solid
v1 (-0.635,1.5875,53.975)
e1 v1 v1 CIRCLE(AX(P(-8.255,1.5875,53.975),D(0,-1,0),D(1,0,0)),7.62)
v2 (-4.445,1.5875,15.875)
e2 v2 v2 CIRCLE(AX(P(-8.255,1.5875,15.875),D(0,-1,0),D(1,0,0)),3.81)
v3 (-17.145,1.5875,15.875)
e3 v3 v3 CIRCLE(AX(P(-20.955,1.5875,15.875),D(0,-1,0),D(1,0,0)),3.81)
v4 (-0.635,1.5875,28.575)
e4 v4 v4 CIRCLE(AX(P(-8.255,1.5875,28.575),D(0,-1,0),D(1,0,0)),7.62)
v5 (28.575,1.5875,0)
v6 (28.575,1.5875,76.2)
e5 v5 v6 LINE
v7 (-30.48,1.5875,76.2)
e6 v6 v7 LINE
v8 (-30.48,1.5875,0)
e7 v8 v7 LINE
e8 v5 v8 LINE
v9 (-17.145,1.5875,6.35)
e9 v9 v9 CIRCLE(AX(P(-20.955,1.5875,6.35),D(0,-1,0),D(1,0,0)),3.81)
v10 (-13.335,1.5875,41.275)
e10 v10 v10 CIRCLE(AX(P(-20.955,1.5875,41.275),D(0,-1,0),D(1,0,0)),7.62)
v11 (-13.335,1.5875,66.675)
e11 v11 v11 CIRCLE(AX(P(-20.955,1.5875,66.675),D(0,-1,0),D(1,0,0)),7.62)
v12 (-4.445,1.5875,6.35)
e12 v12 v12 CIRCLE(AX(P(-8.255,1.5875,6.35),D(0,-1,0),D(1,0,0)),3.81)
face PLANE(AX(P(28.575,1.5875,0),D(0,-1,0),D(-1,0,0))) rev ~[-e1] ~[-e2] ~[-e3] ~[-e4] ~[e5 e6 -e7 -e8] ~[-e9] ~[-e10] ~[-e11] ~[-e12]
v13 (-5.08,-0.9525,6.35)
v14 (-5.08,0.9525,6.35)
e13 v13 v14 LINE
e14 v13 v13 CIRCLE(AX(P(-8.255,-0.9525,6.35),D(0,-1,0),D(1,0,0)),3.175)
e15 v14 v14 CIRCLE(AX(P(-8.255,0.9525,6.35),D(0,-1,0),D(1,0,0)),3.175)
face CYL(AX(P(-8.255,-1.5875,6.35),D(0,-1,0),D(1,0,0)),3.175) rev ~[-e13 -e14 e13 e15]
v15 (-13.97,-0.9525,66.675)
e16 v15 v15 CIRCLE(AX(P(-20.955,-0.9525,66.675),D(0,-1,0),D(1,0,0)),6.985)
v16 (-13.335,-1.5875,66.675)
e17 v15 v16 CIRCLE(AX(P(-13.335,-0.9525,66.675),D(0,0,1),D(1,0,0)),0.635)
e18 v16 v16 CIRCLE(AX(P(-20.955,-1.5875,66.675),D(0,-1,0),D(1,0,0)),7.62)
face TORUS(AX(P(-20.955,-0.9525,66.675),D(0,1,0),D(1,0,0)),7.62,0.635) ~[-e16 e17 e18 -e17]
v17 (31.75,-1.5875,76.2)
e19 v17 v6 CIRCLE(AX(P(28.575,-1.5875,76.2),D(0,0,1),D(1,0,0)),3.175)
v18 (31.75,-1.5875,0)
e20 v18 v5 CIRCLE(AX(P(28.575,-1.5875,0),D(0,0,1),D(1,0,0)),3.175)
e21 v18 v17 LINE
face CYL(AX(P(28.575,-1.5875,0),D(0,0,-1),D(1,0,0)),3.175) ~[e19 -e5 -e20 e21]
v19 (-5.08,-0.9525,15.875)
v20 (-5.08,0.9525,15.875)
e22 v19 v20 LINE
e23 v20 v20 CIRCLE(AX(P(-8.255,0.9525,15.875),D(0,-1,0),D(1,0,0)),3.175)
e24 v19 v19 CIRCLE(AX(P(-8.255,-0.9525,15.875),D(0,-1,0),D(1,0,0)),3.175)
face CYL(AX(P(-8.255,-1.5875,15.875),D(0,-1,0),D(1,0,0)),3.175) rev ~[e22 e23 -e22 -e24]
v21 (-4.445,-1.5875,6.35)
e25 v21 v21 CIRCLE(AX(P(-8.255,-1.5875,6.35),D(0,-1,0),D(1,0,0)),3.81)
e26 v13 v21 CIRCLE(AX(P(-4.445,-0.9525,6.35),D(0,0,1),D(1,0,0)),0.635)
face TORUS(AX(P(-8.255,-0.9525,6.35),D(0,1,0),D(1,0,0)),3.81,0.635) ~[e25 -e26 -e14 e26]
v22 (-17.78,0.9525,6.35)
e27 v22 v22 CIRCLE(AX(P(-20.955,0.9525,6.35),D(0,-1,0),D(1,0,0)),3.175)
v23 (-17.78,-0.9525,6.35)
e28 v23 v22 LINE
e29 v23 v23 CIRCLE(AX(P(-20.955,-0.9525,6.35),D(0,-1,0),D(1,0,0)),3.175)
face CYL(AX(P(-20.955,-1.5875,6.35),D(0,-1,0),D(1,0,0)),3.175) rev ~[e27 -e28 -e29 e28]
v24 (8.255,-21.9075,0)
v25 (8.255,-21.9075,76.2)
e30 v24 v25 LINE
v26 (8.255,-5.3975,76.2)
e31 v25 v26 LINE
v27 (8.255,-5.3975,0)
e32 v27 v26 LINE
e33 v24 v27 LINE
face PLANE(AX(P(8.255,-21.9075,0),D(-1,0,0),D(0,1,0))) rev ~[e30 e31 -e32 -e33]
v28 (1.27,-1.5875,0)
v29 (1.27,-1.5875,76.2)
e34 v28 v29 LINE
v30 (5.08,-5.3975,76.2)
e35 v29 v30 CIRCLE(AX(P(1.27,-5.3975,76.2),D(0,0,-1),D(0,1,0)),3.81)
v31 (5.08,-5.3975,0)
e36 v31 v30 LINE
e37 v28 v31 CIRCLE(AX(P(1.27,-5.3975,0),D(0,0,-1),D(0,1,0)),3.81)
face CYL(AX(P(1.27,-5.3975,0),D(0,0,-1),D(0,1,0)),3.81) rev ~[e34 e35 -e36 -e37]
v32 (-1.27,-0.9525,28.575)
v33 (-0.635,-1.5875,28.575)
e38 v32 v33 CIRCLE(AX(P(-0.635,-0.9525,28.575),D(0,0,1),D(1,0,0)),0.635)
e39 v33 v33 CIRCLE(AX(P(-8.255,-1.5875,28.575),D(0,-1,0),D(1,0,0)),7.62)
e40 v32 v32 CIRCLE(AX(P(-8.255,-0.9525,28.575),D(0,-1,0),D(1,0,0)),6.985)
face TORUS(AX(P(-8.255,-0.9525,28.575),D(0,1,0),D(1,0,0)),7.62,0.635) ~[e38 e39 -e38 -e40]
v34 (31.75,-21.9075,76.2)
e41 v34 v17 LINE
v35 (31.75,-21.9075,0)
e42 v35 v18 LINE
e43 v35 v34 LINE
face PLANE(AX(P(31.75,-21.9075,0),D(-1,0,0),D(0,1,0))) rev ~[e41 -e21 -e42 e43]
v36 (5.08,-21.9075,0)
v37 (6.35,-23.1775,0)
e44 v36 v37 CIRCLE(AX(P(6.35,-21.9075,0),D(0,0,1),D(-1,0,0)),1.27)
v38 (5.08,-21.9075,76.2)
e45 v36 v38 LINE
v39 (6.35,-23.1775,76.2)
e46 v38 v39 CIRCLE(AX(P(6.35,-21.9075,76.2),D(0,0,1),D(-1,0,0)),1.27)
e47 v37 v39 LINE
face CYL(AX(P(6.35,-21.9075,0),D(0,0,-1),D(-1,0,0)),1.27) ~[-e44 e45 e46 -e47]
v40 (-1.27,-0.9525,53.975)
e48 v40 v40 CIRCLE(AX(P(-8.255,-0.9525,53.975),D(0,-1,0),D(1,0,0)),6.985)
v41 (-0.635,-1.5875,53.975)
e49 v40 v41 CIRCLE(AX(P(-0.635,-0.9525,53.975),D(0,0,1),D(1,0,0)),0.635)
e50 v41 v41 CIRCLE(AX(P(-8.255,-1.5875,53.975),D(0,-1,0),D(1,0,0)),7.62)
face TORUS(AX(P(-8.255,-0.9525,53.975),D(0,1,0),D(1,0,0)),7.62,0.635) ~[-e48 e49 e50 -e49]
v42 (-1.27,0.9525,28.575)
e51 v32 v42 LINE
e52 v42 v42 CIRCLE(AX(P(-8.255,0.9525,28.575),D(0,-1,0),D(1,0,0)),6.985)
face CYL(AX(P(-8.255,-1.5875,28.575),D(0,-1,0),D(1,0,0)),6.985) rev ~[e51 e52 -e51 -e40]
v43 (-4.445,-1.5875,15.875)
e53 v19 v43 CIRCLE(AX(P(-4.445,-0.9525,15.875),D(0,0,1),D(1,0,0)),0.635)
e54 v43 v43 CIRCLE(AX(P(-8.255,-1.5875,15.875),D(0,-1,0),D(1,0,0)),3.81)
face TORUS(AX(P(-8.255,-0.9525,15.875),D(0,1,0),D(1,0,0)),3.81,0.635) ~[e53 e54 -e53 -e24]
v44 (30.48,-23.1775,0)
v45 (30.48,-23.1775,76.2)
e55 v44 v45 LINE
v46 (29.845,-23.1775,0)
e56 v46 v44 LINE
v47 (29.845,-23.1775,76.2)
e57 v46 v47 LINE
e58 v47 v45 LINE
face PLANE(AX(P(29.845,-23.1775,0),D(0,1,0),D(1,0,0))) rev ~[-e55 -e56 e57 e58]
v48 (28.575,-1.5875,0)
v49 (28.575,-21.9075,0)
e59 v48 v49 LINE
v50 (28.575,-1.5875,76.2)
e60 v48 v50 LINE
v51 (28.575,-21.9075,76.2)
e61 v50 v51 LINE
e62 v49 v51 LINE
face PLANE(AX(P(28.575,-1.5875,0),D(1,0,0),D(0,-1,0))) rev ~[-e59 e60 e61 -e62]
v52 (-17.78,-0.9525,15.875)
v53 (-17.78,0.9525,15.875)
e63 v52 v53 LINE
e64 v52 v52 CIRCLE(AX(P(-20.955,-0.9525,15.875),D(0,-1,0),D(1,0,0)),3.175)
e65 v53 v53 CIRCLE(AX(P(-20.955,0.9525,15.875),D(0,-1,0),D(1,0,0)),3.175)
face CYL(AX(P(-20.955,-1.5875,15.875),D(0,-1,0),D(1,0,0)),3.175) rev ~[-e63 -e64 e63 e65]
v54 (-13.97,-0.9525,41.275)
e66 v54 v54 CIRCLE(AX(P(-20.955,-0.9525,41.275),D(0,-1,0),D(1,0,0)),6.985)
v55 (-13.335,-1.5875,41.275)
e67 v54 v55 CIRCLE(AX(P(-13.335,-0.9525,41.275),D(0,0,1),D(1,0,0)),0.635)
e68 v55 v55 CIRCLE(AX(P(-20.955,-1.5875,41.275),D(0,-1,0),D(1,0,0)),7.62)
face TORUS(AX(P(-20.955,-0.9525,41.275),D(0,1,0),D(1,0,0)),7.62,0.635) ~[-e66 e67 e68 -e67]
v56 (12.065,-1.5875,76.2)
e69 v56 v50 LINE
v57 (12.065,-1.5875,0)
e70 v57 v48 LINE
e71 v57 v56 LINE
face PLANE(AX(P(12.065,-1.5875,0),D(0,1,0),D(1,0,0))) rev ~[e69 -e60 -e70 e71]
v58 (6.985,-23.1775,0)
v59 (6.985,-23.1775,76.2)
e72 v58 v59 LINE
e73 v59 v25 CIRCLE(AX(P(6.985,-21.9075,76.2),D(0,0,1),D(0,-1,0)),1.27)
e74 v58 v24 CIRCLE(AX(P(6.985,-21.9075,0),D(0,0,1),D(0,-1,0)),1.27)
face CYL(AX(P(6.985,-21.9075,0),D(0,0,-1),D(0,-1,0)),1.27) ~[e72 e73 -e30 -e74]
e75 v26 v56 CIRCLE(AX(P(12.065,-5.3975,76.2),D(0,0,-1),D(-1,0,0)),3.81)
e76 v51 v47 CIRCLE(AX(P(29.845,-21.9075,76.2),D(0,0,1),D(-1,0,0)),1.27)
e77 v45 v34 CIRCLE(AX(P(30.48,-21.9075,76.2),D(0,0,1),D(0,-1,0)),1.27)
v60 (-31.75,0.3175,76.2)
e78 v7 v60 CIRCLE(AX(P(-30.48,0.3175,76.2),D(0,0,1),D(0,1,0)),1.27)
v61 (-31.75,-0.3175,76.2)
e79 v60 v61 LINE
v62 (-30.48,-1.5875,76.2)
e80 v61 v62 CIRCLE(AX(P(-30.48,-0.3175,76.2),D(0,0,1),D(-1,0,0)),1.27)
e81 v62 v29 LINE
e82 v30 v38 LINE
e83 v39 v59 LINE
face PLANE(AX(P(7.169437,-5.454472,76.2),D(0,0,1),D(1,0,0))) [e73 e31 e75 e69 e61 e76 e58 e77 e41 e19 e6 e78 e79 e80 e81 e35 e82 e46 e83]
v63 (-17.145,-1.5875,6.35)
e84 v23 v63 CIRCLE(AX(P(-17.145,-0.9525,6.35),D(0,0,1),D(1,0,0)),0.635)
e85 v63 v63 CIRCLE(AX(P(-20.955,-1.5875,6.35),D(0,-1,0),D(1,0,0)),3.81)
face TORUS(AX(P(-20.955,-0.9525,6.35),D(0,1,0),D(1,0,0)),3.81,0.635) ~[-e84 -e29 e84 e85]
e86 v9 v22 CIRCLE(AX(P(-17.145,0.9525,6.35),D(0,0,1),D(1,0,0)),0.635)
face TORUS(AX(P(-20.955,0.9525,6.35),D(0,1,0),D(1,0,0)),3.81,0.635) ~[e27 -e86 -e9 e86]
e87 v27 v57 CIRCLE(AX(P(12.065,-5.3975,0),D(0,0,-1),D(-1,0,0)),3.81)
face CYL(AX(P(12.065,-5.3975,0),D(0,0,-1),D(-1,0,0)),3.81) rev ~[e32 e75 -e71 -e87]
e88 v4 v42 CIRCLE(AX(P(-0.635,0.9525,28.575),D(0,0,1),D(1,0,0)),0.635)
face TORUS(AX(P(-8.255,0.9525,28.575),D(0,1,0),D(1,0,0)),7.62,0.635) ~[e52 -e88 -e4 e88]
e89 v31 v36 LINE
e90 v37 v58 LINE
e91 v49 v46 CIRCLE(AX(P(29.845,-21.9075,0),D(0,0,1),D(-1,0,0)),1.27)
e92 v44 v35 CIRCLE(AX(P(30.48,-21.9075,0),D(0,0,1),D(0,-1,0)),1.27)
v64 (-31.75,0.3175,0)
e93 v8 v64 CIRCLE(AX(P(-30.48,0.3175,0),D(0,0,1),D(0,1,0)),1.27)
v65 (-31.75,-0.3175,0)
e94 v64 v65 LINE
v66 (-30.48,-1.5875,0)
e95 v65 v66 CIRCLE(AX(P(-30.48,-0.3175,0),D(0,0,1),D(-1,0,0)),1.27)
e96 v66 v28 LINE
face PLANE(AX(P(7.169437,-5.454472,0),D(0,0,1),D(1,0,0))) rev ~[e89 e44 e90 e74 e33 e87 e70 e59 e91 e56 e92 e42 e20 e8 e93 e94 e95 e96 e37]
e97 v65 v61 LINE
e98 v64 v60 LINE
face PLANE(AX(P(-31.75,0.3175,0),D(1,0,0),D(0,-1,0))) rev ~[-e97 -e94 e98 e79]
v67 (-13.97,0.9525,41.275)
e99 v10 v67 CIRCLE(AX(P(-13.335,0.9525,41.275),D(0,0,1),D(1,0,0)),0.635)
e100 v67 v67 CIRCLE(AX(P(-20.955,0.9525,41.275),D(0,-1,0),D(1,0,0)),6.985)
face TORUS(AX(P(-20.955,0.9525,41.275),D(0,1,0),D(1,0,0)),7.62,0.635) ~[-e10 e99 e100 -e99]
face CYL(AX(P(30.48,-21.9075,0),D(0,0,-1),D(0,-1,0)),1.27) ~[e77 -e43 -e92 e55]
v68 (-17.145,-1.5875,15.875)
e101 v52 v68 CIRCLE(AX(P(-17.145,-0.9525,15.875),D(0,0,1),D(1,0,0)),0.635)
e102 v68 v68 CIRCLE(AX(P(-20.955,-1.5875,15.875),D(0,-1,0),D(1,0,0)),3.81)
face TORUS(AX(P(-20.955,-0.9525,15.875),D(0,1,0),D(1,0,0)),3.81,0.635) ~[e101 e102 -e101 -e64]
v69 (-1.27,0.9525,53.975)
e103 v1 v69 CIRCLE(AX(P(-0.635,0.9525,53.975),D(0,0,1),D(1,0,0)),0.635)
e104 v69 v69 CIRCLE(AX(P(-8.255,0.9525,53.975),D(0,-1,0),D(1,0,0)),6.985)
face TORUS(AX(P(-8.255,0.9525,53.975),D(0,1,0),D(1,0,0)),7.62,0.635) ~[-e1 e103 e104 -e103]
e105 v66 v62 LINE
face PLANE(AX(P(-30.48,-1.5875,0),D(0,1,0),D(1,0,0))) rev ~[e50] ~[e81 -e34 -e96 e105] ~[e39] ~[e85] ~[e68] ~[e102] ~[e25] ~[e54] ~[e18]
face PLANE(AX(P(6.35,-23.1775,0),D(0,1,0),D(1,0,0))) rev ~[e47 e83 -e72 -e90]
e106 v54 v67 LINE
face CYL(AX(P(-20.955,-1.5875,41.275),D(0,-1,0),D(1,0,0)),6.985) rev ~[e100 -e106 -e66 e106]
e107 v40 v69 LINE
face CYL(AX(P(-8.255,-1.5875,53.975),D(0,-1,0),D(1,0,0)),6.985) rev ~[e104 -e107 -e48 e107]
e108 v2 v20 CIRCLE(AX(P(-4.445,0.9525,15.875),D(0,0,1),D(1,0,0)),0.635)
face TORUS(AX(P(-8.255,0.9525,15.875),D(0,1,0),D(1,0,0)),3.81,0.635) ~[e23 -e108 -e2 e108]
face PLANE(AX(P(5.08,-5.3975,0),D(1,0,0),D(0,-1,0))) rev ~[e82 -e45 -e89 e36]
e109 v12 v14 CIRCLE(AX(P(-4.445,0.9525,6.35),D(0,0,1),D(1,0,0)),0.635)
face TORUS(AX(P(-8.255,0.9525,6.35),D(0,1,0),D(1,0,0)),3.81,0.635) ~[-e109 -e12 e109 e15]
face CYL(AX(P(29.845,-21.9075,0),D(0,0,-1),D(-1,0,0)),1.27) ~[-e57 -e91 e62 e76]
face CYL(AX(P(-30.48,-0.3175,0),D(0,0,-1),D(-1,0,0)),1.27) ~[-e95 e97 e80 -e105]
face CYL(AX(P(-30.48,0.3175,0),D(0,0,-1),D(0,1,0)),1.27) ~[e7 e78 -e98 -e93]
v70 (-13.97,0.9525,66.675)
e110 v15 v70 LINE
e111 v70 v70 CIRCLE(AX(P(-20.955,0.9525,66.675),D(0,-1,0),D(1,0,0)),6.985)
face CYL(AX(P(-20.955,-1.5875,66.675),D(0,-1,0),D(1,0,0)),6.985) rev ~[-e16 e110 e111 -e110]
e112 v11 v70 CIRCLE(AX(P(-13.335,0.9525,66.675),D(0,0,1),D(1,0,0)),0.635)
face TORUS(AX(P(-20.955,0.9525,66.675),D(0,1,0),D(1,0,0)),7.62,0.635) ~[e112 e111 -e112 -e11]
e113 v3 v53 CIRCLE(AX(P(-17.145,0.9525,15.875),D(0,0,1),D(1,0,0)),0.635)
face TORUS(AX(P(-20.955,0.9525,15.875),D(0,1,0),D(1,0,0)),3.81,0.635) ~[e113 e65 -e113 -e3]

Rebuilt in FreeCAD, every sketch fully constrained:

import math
import FreeCAD as App
import Part
import Sketcher
from FreeCAD import Vector
Q = App.Units.Quantity


def edges_at(feature, points):
    """Names of the edges that pass closest to the given points."""
    edges = feature.Shape.Edges
    near = lambda p: min(range(len(edges)), key=lambda i: edges[i].distToShape(Part.Vertex(*p))[0])
    return sorted({f"Edge{near(p) + 1}" for p in points})

doc = App.newDocument("Part")
body = doc.addObject("PartDesign::Body", "Body")

# Sketch on XY plane
sketch1 = body.newObject("Sketcher::SketchObject", "Sketch")
sketch1.AttachmentSupport = (doc.getObject("XY_Plane"), [""])
sketch1.MapMode = "FlatFace"
sketch1.addGeometry(Part.ArcOfCircle(Part.Circle(Vector(28.6, -1.6, 0), Vector(0, 0, 1), 3.2), math.radians(0), math.radians(90)), False)
sketch1.addGeometry(Part.LineSegment(Vector(28.6, 1.6, 0), Vector(-30.5, 1.6, 0)), False)
sketch1.addGeometry(Part.ArcOfCircle(Part.Circle(Vector(-30.5, 0.3, 0), Vector(0, 0, 1), 1.3), math.radians(90), math.radians(180)), False)
sketch1.addGeometry(Part.LineSegment(Vector(-31.8, 0.3, 0), Vector(-31.8, -0.3, 0)), False)
sketch1.addGeometry(Part.ArcOfCircle(Part.Circle(Vector(-30.5, -0.3, 0), Vector(0, 0, 1), 1.3), math.radians(180), math.radians(270)), False)
sketch1.addGeometry(Part.LineSegment(Vector(-30.5, -1.6, 0), Vector(1.3, -1.6, 0)), False)
sketch1.addGeometry(Part.ArcOfCircle(Part.Circle(Vector(1.3, -5.4, 0), Vector(0, 0, 1), 3.8), math.radians(0), math.radians(90)), False)
sketch1.addGeometry(Part.LineSegment(Vector(5.1, -5.4, 0), Vector(5.1, -21.9, 0)), False)
sketch1.addGeometry(Part.ArcOfCircle(Part.Circle(Vector(6.3, -21.9, 0), Vector(0, 0, 1), 1.3), math.radians(180), math.radians(270)), False)
sketch1.addGeometry(Part.LineSegment(Vector(6.3, -23.2, 0), Vector(7, -23.2, 0)), False)
sketch1.addGeometry(Part.ArcOfCircle(Part.Circle(Vector(7, -21.9, 0), Vector(0, 0, 1), 1.3), math.radians(-90), math.radians(0)), False)
sketch1.addGeometry(Part.LineSegment(Vector(8.3, -21.9, 0), Vector(8.3, -5.4, 0)), False)
sketch1.addGeometry(Part.ArcOfCircle(Part.Circle(Vector(12.1, -5.4, 0), Vector(0, 0, 1), 3.8), math.radians(90), math.radians(180)), False)
sketch1.addGeometry(Part.LineSegment(Vector(12.1, -1.6, 0), Vector(28.6, -1.6, 0)), False)
sketch1.addGeometry(Part.LineSegment(Vector(28.6, -1.6, 0), Vector(28.6, -21.9, 0)), False)
sketch1.addGeometry(Part.ArcOfCircle(Part.Circle(Vector(29.8, -21.9, 0), Vector(0, 0, 1), 1.3), math.radians(180), math.radians(270)), False)
sketch1.addGeometry(Part.LineSegment(Vector(29.8, -23.2, 0), Vector(30.5, -23.2, 0)), False)
sketch1.addGeometry(Part.ArcOfCircle(Part.Circle(Vector(30.5, -21.9, 0), Vector(0, 0, 1), 1.3), math.radians(-90), math.radians(0)), False)
sketch1.addGeometry(Part.LineSegment(Vector(31.8, -21.9, 0), Vector(31.8, -1.6, 0)), False)
sketch1.addConstraint(Sketcher.Constraint("Tangent", 0, 2, 1, 1))
sketch1.addConstraint(Sketcher.Constraint("Tangent", 1, 2, 2, 1))
sketch1.addConstraint(Sketcher.Constraint("Tangent", 2, 2, 3, 1))
sketch1.addConstraint(Sketcher.Constraint("Tangent", 3, 2, 4, 1))
sketch1.addConstraint(Sketcher.Constraint("Tangent", 4, 2, 5, 1))
sketch1.addConstraint(Sketcher.Constraint("Tangent", 5, 2, 6, 2))
sketch1.addConstraint(Sketcher.Constraint("Tangent", 6, 1, 7, 1))
sketch1.addConstraint(Sketcher.Constraint("Tangent", 7, 2, 8, 1))
sketch1.addConstraint(Sketcher.Constraint("Tangent", 8, 2, 9, 1))
sketch1.addConstraint(Sketcher.Constraint("Tangent", 9, 2, 10, 1))
sketch1.addConstraint(Sketcher.Constraint("Tangent", 10, 2, 11, 1))
sketch1.addConstraint(Sketcher.Constraint("Tangent", 11, 2, 12, 2))
sketch1.addConstraint(Sketcher.Constraint("Tangent", 12, 1, 13, 1))
sketch1.addConstraint(Sketcher.Constraint("Coincident", 13, 2, 14, 1))
sketch1.addConstraint(Sketcher.Constraint("Tangent", 14, 2, 15, 1))
sketch1.addConstraint(Sketcher.Constraint("Tangent", 15, 2, 16, 1))
sketch1.addConstraint(Sketcher.Constraint("Tangent", 16, 2, 17, 1))
sketch1.addConstraint(Sketcher.Constraint("Tangent", 17, 2, 18, 1))
sketch1.addConstraint(Sketcher.Constraint("Tangent", 18, 2, 0, 1))
sketch1.addConstraint(Sketcher.Constraint("Horizontal", 1))
sketch1.addConstraint(Sketcher.Constraint("Vertical", 3))
sketch1.addConstraint(Sketcher.Constraint("Horizontal", 5))
sketch1.addConstraint(Sketcher.Constraint("Vertical", 7))
sketch1.addConstraint(Sketcher.Constraint("Horizontal", 9))
sketch1.addConstraint(Sketcher.Constraint("Vertical", 11))
sketch1.addConstraint(Sketcher.Constraint("Horizontal", 13))
sketch1.addConstraint(Sketcher.Constraint("Vertical", 14))
sketch1.addConstraint(Sketcher.Constraint("Horizontal", 16))
sketch1.addConstraint(Sketcher.Constraint("Vertical", 18))
sketch1.addConstraint(Sketcher.Constraint("Coincident", 13, 2, 0, 3))
sketch1.addConstraint(Sketcher.Constraint("Equal", 2, 4))
sketch1.addConstraint(Sketcher.Constraint("Equal", 4, 8))
sketch1.addConstraint(Sketcher.Constraint("Equal", 8, 10))
sketch1.addConstraint(Sketcher.Constraint("Equal", 6, 12))
sketch1.addConstraint(Sketcher.Constraint("Equal", 10, 15))
sketch1.addConstraint(Sketcher.Constraint("Equal", 15, 17))
sketch1.addConstraint(Sketcher.Constraint("Horizontal", 6, 3, 12, 3))
sketch1.addConstraint(Sketcher.Constraint("Horizontal", 10, 3, 15, 3))
sketch1.addConstraint(Sketcher.Constraint("Equal", 9, 16))
sketch1.addConstraint(Sketcher.Constraint("Equal", 13, 7))
sketch1.addConstraint(Sketcher.Constraint("Radius", 2, Q("0.05 in")))
sketch1.addConstraint(Sketcher.Constraint("Radius", 6, Q("0.15 in")))
sketch1.addConstraint(Sketcher.Constraint("DistanceY", 14, 2, 14, 1, Q("0.8 in")))
sketch1.addConstraint(Sketcher.Constraint("Radius", 0, Q("0.125 in")))
sketch1.addConstraint(Sketcher.Constraint("DistanceX", 5, 1, 5, 2, Q("1.25 in")))
sketch1.addConstraint(Sketcher.Constraint("DistanceX", 2, 3, -1, 1, Q("1.2 in")))
sketch1.addConstraint(Sketcher.Constraint("DistanceY", 0, 3, -1, 1, Q("0.0625 in")))
pad1 = body.newObject("PartDesign::Pad", "Pad")
pad1.Profile = sketch1
pad1.Length = Q("3 in")

# Sketch on XZ plane
sketch2 = body.newObject("Sketcher::SketchObject", "Sketch001")
sketch2.AttachmentSupport = (doc.getObject("XZ_Plane"), [""])
sketch2.MapMode = "FlatFace"
sketch2.AttachmentOffset = App.Placement(Vector(0, 0, 0.0625 * 25.4), App.Rotation())
sketch2.addGeometry(Part.Circle(Vector(-21, 15.9, 0), Vector(0, 0, 1), 3.2), False)
sketch2.addGeometry(Part.Circle(Vector(-8.3, 15.9, 0), Vector(0, 0, 1), 3.2), False)
sketch2.addGeometry(Part.Circle(Vector(-21, 6.3, 0), Vector(0, 0, 1), 3.2), False)
sketch2.addGeometry(Part.Circle(Vector(-8.3, 6.3, 0), Vector(0, 0, 1), 3.2), False)
sketch2.addGeometry(Part.Circle(Vector(-8.3, 28.6, 0), Vector(0, 0, 1), 7), False)
sketch2.addGeometry(Part.Circle(Vector(-21, 41.3, 0), Vector(0, 0, 1), 7), False)
sketch2.addGeometry(Part.Circle(Vector(-8.3, 54, 0), Vector(0, 0, 1), 7), False)
sketch2.addGeometry(Part.Circle(Vector(-21, 66.7, 0), Vector(0, 0, 1), 7), False)
sketch2.addConstraint(Sketcher.Constraint("Equal", 0, 1))
sketch2.addConstraint(Sketcher.Constraint("Equal", 1, 2))
sketch2.addConstraint(Sketcher.Constraint("Equal", 2, 3))
sketch2.addConstraint(Sketcher.Constraint("Equal", 4, 5))
sketch2.addConstraint(Sketcher.Constraint("Equal", 5, 6))
sketch2.addConstraint(Sketcher.Constraint("Equal", 6, 7))
sketch2.addConstraint(Sketcher.Constraint("Horizontal", 0, 3, 1, 3))
sketch2.addConstraint(Sketcher.Constraint("Horizontal", 2, 3, 3, 3))
sketch2.addConstraint(Sketcher.Constraint("Vertical", 0, 3, 2, 3))
sketch2.addConstraint(Sketcher.Constraint("Vertical", 1, 3, 3, 3))
sketch2.addConstraint(Sketcher.Constraint("Vertical", 3, 3, 4, 3))
sketch2.addConstraint(Sketcher.Constraint("Vertical", 2, 3, 5, 3))
sketch2.addConstraint(Sketcher.Constraint("Vertical", 4, 3, 6, 3))
sketch2.addConstraint(Sketcher.Constraint("Vertical", 5, 3, 7, 3))
sketch2.addConstraint(Sketcher.Constraint("Diameter", 0, Q("0.25 in")))
sketch2.addConstraint(Sketcher.Constraint("Diameter", 4, Q("0.55 in")))
sketch2.addConstraint(Sketcher.Constraint("DistanceY", 0, 3, 5, 3, Q("1 in")))
sketch2.addConstraint(Sketcher.Constraint("DistanceY", 4, 3, 6, 3, Q("1 in")))
sketch2.addConstraint(Sketcher.Constraint("DistanceY", 5, 3, 7, 3, Q("1 in")))
sketch2.addConstraint(Sketcher.Constraint("DistanceX", 0, 3, 1, 3, Q("0.5 in")))
sketch2.addConstraint(Sketcher.Constraint("DistanceY", 1, 3, 4, 3, Q("0.5 in")))
sketch2.addConstraint(Sketcher.Constraint("DistanceY", -1, 1, 2, 3, Q("0.25 in")))
sketch2.addConstraint(Sketcher.Constraint("DistanceX", 0, 3, -1, 1, Q("0.825 in")))
sketch2.addConstraint(Sketcher.Constraint("DistanceY", -1, 1, 0, 3, Q("0.625 in")))
pocket1 = body.newObject("PartDesign::Pocket", "Pocket")
pocket1.Profile = sketch2
pocket1.Length = Q("1 in")
doc.recompute()

fillet = body.newObject("PartDesign::Fillet", "Fillet")
fillet.Base = (pocket1, edges_at(pocket1, [
    (-27.94, -1.587, 66.675),
    (-15.24, -1.587, 53.975),
    (-27.94, -1.587, 41.275),
    (-15.24, -1.587, 28.575),
    (-11.43, -1.587, 15.875),
    (-11.43, -1.587, 6.35),
    (-24.13, -1.587, 6.35),
    (-24.13, -1.587, 15.875),
    (-11.43, 1.587, 6.35),
    (-24.13, 1.587, 6.35),
    (-24.13, 1.587, 15.875),
    (-15.24, 1.587, 28.575),
    (-27.94, 1.587, 41.275),
    (-15.24, 1.587, 53.975),
    (-27.94, 1.587, 66.675),
    (-11.43, 1.587, 15.875),
]))
fillet.Radius = Q("0.025 in")

doc.recompute()
